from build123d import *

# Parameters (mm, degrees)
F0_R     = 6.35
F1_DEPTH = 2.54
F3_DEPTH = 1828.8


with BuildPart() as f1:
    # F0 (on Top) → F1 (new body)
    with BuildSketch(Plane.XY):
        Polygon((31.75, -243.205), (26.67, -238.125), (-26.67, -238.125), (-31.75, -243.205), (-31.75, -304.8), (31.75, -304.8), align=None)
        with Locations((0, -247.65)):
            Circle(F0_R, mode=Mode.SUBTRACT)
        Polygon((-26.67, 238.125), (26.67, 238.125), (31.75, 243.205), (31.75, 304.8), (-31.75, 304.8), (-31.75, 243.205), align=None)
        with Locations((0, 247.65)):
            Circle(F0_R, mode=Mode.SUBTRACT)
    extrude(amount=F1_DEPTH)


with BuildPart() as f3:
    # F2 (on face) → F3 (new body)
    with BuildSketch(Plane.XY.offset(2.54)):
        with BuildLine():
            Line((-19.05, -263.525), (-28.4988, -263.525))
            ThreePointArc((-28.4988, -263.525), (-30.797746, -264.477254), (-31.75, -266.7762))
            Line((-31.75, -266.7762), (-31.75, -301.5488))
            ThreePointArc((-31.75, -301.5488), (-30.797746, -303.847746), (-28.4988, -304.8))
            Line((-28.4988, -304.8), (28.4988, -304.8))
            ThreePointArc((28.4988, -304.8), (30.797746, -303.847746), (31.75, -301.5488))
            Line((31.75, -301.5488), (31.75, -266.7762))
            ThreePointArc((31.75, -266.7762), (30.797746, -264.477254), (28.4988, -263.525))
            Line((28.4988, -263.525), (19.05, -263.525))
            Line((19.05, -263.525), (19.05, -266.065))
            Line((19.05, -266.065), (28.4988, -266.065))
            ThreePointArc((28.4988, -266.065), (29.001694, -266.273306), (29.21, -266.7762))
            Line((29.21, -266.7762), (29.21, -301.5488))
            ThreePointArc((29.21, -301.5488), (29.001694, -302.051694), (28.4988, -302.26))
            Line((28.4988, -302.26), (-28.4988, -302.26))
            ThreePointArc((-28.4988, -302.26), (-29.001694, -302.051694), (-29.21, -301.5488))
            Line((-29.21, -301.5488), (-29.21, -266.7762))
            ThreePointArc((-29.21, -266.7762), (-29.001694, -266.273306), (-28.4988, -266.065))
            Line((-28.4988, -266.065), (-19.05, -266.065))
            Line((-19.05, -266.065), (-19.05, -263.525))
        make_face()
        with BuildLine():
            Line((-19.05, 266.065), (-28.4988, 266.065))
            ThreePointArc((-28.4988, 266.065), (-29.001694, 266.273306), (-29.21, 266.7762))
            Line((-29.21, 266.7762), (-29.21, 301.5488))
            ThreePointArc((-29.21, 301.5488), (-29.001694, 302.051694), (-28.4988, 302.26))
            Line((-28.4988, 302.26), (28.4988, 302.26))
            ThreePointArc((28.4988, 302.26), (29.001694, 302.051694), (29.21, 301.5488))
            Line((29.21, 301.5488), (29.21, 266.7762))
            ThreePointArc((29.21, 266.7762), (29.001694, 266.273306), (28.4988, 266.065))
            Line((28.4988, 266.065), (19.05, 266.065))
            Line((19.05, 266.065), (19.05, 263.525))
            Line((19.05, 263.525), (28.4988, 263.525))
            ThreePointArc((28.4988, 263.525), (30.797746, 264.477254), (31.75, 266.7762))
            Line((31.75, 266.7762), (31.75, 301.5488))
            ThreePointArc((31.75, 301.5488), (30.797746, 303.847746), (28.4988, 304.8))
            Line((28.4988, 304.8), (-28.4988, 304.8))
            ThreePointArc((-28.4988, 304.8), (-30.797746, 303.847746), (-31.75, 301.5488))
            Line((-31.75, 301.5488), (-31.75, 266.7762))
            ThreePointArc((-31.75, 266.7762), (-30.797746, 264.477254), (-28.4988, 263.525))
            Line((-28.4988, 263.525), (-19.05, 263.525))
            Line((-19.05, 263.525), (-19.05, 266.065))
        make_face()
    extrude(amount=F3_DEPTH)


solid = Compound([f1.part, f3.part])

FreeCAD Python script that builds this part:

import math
import FreeCAD as App
import Part
import Sketcher

V = App.Vector
Q = App.Units.Quantity

doc = App.newDocument("Part")
body = doc.addObject("PartDesign::Body", "Body")
body.AllowCompound = True

# Sketch on XY plane
sketch1 = body.newObject("Sketcher::SketchObject", "Sketch")
sketch1.AttachmentSupport = (doc.getObject("XY_Plane"), [""])
sketch1.MapMode = "FlatFace"
sketch1.addGeometry(Part.LineSegment(V(31.75, -243.205, 0), V(26.67, -238.125, 0)), False)
sketch1.addGeometry(Part.LineSegment(V(26.67, -238.125, 0), V(-26.67, -238.125, 0)), False)
sketch1.addGeometry(Part.LineSegment(V(-26.67, -238.125, 0), V(-31.75, -243.205, 0)), False)
sketch1.addGeometry(Part.LineSegment(V(-31.75, -243.205, 0), V(-31.75, -304.8, 0)), False)
sketch1.addGeometry(Part.LineSegment(V(-31.75, -304.8, 0), V(31.75, -304.8, 0)), False)
sketch1.addGeometry(Part.LineSegment(V(31.75, -304.8, 0), V(31.75, -243.205, 0)), False)
sketch1.addGeometry(Part.Circle(V(0, -247.65, 0), V(0, 0, 1), 6.35), False)
sketch1.addGeometry(Part.LineSegment(V(-26.67, 238.125, 0), V(26.67, 238.125, 0)), False)
sketch1.addGeometry(Part.LineSegment(V(26.67, 238.125, 0), V(31.75, 243.205, 0)), False)
sketch1.addGeometry(Part.LineSegment(V(31.75, 243.205, 0), V(31.75, 304.8, 0)), False)
sketch1.addGeometry(Part.LineSegment(V(31.75, 304.8, 0), V(-31.75, 304.8, 0)), False)
sketch1.addGeometry(Part.LineSegment(V(-31.75, 304.8, 0), V(-31.75, 243.205, 0)), False)
sketch1.addGeometry(Part.LineSegment(V(-31.75, 243.205, 0), V(-26.67, 238.125, 0)), False)
sketch1.addGeometry(Part.Circle(V(0, 247.65, 0), V(0, 0, 1), 6.35), False)
sketch1.addConstraint(Sketcher.Constraint("Coincident", 0, 2, 1, 1))
sketch1.addConstraint(Sketcher.Constraint("Coincident", 1, 2, 2, 1))
sketch1.addConstraint(Sketcher.Constraint("Coincident", 2, 2, 3, 1))
sketch1.addConstraint(Sketcher.Constraint("Coincident", 3, 2, 4, 1))
sketch1.addConstraint(Sketcher.Constraint("Coincident", 4, 2, 5, 1))
sketch1.addConstraint(Sketcher.Constraint("Coincident", 5, 2, 0, 1))
sketch1.addConstraint(Sketcher.Constraint("Coincident", 7, 2, 8, 1))
sketch1.addConstraint(Sketcher.Constraint("Coincident", 8, 2, 9, 1))
sketch1.addConstraint(Sketcher.Constraint("Coincident", 9, 2, 10, 1))
sketch1.addConstraint(Sketcher.Constraint("Coincident", 10, 2, 11, 1))
sketch1.addConstraint(Sketcher.Constraint("Coincident", 11, 2, 12, 1))
sketch1.addConstraint(Sketcher.Constraint("Coincident", 12, 2, 7, 1))
sketch1.addConstraint(Sketcher.Constraint("Horizontal", 1))
sketch1.addConstraint(Sketcher.Constraint("Vertical", 3))
sketch1.addConstraint(Sketcher.Constraint("Horizontal", 4))
sketch1.addConstraint(Sketcher.Constraint("Vertical", 5))
sketch1.addConstraint(Sketcher.Constraint("Horizontal", 7))
sketch1.addConstraint(Sketcher.Constraint("Vertical", 9))
sketch1.addConstraint(Sketcher.Constraint("Horizontal", 10))
sketch1.addConstraint(Sketcher.Constraint("Vertical", 11))
sketch1.addConstraint(Sketcher.Constraint("Equal", 6, 13))
sketch1.addConstraint(Sketcher.Constraint("Symmetric", 6, 3, 13, 3, -1, 1))
sketch1.addConstraint(Sketcher.Constraint("Symmetric", 1, 2, 7, 2, -1, 1))
sketch1.addConstraint(Sketcher.Constraint("Symmetric", 2, 2, 8, 2, -1, 1))
sketch1.addConstraint(Sketcher.Constraint("Symmetric", 4, 2, 10, 2, -1, 1))
sketch1.addConstraint(Sketcher.Constraint("Symmetric", 2, 2, 5, 2, -2))
sketch1.addConstraint(Sketcher.Constraint("PointOnObject", 6, 3, -2))
sketch1.addConstraint(Sketcher.Constraint("Perpendicular", 0, 2))
sketch1.addConstraint(Sketcher.Constraint("Perpendicular", 8, 12))
sketch1.addConstraint(Sketcher.Constraint("Horizontal", 8, 2, 11, 2))
sketch1.addConstraint(Sketcher.Constraint("Vertical", 0, 2, 7, 2))
sketch1.addConstraint(Sketcher.Constraint("Diameter", 6, Q("0.5 in")))
sketch1.addConstraint(Sketcher.Constraint("DistanceX", 1, 2, 1, 1, Q("2.1 in")))
sketch1.addConstraint(Sketcher.Constraint("DistanceX", 4, 1, 4, 2, Q("2.5 in")))
sketch1.addConstraint(Sketcher.Constraint("DistanceY", 3, 2, -1, 1, Q("12 in")))
sketch1.addConstraint(Sketcher.Constraint("DistanceY", 6, 3, 13, 3, Q("19.5 in")))
sketch1.addConstraint(Sketcher.Constraint("DistanceY", 3, 2, 3, 1, Q("2.425 in")))
pad1 = body.newObject("PartDesign::Pad", "Pad")
pad1.Profile = sketch1
pad1.Length = Q("0.1 in")
body2 = doc.addObject("PartDesign::Body", "Body001")
body2.AllowCompound = True

# Sketch on XY plane
sketch2 = body2.newObject("Sketcher::SketchObject", "Sketch001")
sketch2.AttachmentSupport = (doc.getObject("XY_Plane001"), [""])
sketch2.MapMode = "FlatFace"
sketch2.AttachmentOffset = App.Placement(V(0, 0, 0.1 * 25.4), App.Rotation())
sketch2.addGeometry(Part.LineSegment(V(-19.05, -263.525, 0), V(-28.4988, -263.525, 0)), False)
sketch2.addGeometry(Part.ArcOfCircle(Part.Circle(V(-28.498801, -266.776199, 0), V(0, 0, 1), 3.251199), math.radians(89.999974), math.radians(180.000026)), False)
sketch2.addGeometry(Part.LineSegment(V(-31.75, -266.7762, 0), V(-31.75, -301.5488, 0)), False)
sketch2.addGeometry(Part.ArcOfCircle(Part.Circle(V(-28.498801, -301.548801, 0), V(0, 0, 1), 3.251199), math.radians(179.999974), math.radians(270.000026)), False)
sketch2.addGeometry(Part.LineSegment(V(-28.4988, -304.8, 0), V(28.4988, -304.8, 0)), False)
sketch2.addGeometry(Part.ArcOfCircle(Part.Circle(V(28.498801, -301.548801, 0), V(0, 0, 1), 3.251199), math.radians(-90.000026), math.radians(0.000026)), False)
sketch2.addGeometry(Part.LineSegment(V(31.75, -301.5488, 0), V(31.75, -266.7762, 0)), False)
sketch2.addGeometry(Part.ArcOfCircle(Part.Circle(V(28.498801, -266.776199, 0), V(0, 0, 1), 3.251199), math.radians(-0.000026), math.radians(90.000026)), False)
sketch2.addGeometry(Part.LineSegment(V(28.4988, -263.525, 0), V(19.05, -263.525, 0)), False)
sketch2.addGeometry(Part.LineSegment(V(19.05, -263.525, 0), V(19.05, -266.065, 0)), False)
sketch2.addGeometry(Part.LineSegment(V(19.05, -266.065, 0), V(28.4988, -266.065, 0)), False)
sketch2.addGeometry(Part.ArcOfCircle(Part.Circle(V(28.498799, -266.776201, 0), V(0, 0, 1), 0.711201), math.radians(0.000094), math.radians(89.999906)), False)
sketch2.addGeometry(Part.LineSegment(V(29.21, -266.7762, 0), V(29.21, -301.5488, 0)), False)
sketch2.addGeometry(Part.ArcOfCircle(Part.Circle(V(28.498799, -301.548799, 0), V(0, 0, 1), 0.711201), math.radians(-89.999906), math.radians(-0.000094)), False)
sketch2.addGeometry(Part.LineSegment(V(28.4988, -302.26, 0), V(-28.4988, -302.26, 0)), False)
sketch2.addGeometry(Part.ArcOfCircle(Part.Circle(V(-28.498799, -301.548799, 0), V(0, 0, 1), 0.711201), math.radians(-179.999906), math.radians(-90.000094)), False)
sketch2.addGeometry(Part.LineSegment(V(-29.21, -301.5488, 0), V(-29.21, -266.7762, 0)), False)
sketch2.addGeometry(Part.ArcOfCircle(Part.Circle(V(-28.498799, -266.776201, 0), V(0, 0, 1), 0.711201), math.radians(90.000094), math.radians(179.999906)), False)
sketch2.addGeometry(Part.LineSegment(V(-28.4988, -266.065, 0), V(-19.05, -266.065, 0)), False)
sketch2.addGeometry(Part.LineSegment(V(-19.05, -266.065, 0), V(-19.05, -263.525, 0)), False)
sketch2.addGeometry(Part.LineSegment(V(-19.05, 266.065, 0), V(-28.4988, 266.065, 0)), False)
sketch2.addGeometry(Part.ArcOfCircle(Part.Circle(V(-28.498799, 266.776201, 0), V(0, 0, 1), 0.711201), math.radians(-179.999906), math.radians(-90.000094)), False)
sketch2.addGeometry(Part.LineSegment(V(-29.21, 266.7762, 0), V(-29.21, 301.5488, 0)), False)
sketch2.addGeometry(Part.ArcOfCircle(Part.Circle(V(-28.498799, 301.548799, 0), V(0, 0, 1), 0.711201), math.radians(90.000094), math.radians(179.999906)), False)
sketch2.addGeometry(Part.LineSegment(V(-28.4988, 302.26, 0), V(28.4988, 302.26, 0)), False)
sketch2.addGeometry(Part.ArcOfCircle(Part.Circle(V(28.498799, 301.548799, 0), V(0, 0, 1), 0.711201), math.radians(0.000094), math.radians(89.999906)), False)
sketch2.addGeometry(Part.LineSegment(V(29.21, 301.5488, 0), V(29.21, 266.7762, 0)), False)
sketch2.addGeometry(Part.ArcOfCircle(Part.Circle(V(28.498799, 266.776201, 0), V(0, 0, 1), 0.711201), math.radians(-89.999906), math.radians(-0.000094)), False)
sketch2.addGeometry(Part.LineSegment(V(28.4988, 266.065, 0), V(19.05, 266.065, 0)), False)
sketch2.addGeometry(Part.LineSegment(V(19.05, 266.065, 0), V(19.05, 263.525, 0)), False)
sketch2.addGeometry(Part.LineSegment(V(19.05, 263.525, 0), V(28.4988, 263.525, 0)), False)
sketch2.addGeometry(Part.ArcOfCircle(Part.Circle(V(28.498801, 266.776199, 0), V(0, 0, 1), 3.251199), math.radians(-90.000026), math.radians(0.000026)), False)
sketch2.addGeometry(Part.LineSegment(V(31.75, 266.7762, 0), V(31.75, 301.5488, 0)), False)
sketch2.addGeometry(Part.ArcOfCircle(Part.Circle(V(28.498801, 301.548801, 0), V(0, 0, 1), 3.251199), math.radians(-0.000026), math.radians(90.000026)), False)
sketch2.addGeometry(Part.LineSegment(V(28.4988, 304.8, 0), V(-28.4988, 304.8, 0)), False)
sketch2.addGeometry(Part.ArcOfCircle(Part.Circle(V(-28.498801, 301.548801, 0), V(0, 0, 1), 3.251199), math.radians(89.999974), math.radians(180.000026)), False)
sketch2.addGeometry(Part.LineSegment(V(-31.75, 301.5488, 0), V(-31.75, 266.7762, 0)), False)
sketch2.addGeometry(Part.ArcOfCircle(Part.Circle(V(-28.498801, 266.776199, 0), V(0, 0, 1), 3.251199), math.radians(179.999974), math.radians(270.000026)), False)
sketch2.addGeometry(Part.LineSegment(V(-28.4988, 263.525, 0), V(-19.05, 263.525, 0)), False)
sketch2.addGeometry(Part.LineSegment(V(-19.05, 263.525, 0), V(-19.05, 266.065, 0)), False)
sketch2.addConstraint(Sketcher.Constraint("Tangent", 0, 2, 1, 1))
sketch2.addConstraint(Sketcher.Constraint("Tangent", 1, 2, 2, 1))
sketch2.addConstraint(Sketcher.Constraint("Tangent", 2, 2, 3, 1))
sketch2.addConstraint(Sketcher.Constraint("Tangent", 3, 2, 4, 1))
sketch2.addConstraint(Sketcher.Constraint("Tangent", 4, 2, 5, 1))
sketch2.addConstraint(Sketcher.Constraint("Tangent", 5, 2, 6, 1))
sketch2.addConstraint(Sketcher.Constraint("Tangent", 6, 2, 7, 1))
sketch2.addConstraint(Sketcher.Constraint("Tangent", 7, 2, 8, 1))
sketch2.addConstraint(Sketcher.Constraint("Coincident", 8, 2, 9, 1))
sketch2.addConstraint(Sketcher.Constraint("Coincident", 9, 2, 10, 1))
sketch2.addConstraint(Sketcher.Constraint("Tangent", 10, 2, 11, 2))
sketch2.addConstraint(Sketcher.Constraint("Tangent", 11, 1, 12, 1))
sketch2.addConstraint(Sketcher.Constraint("Tangent", 12, 2, 13, 2))
sketch2.addConstraint(Sketcher.Constraint("Tangent", 13, 1, 14, 1))
sketch2.addConstraint(Sketcher.Constraint("Tangent", 14, 2, 15, 2))
sketch2.addConstraint(Sketcher.Constraint("Tangent", 15, 1, 16, 1))
sketch2.addConstraint(Sketcher.Constraint("Tangent", 16, 2, 17, 2))
sketch2.addConstraint(Sketcher.Constraint("Tangent", 17, 1, 18, 1))
sketch2.addConstraint(Sketcher.Constraint("Coincident", 18, 2, 19, 1))
sketch2.addConstraint(Sketcher.Constraint("Coincident", 19, 2, 0, 1))
sketch2.addConstraint(Sketcher.Constraint("Tangent", 20, 2, 21, 2))
sketch2.addConstraint(Sketcher.Constraint("Tangent", 21, 1, 22, 1))
sketch2.addConstraint(Sketcher.Constraint("Tangent", 22, 2, 23, 2))
sketch2.addConstraint(Sketcher.Constraint("Tangent", 23, 1, 24, 1))
sketch2.addConstraint(Sketcher.Constraint("Tangent", 24, 2, 25, 2))
sketch2.addConstraint(Sketcher.Constraint("Tangent", 25, 1, 26, 1))
sketch2.addConstraint(Sketcher.Constraint("Tangent", 26, 2, 27, 2))
sketch2.addConstraint(Sketcher.Constraint("Tangent", 27, 1, 28, 1))
sketch2.addConstraint(Sketcher.Constraint("Coincident", 28, 2, 29, 1))
sketch2.addConstraint(Sketcher.Constraint("Coincident", 29, 2, 30, 1))
sketch2.addConstraint(Sketcher.Constraint("Tangent", 30, 2, 31, 1))
sketch2.addConstraint(Sketcher.Constraint("Tangent", 31, 2, 32, 1))
sketch2.addConstraint(Sketcher.Constraint("Tangent", 32, 2, 33, 1))
sketch2.addConstraint(Sketcher.Constraint("Tangent", 33, 2, 34, 1))
sketch2.addConstraint(Sketcher.Constraint("Tangent", 34, 2, 35, 1))
sketch2.addConstraint(Sketcher.Constraint("Tangent", 35, 2, 36, 1))
sketch2.addConstraint(Sketcher.Constraint("Tangent", 36, 2, 37, 1))
sketch2.addConstraint(Sketcher.Constraint("Tangent", 37, 2, 38, 1))
sketch2.addConstraint(Sketcher.Constraint("Coincident", 38, 2, 39, 1))
sketch2.addConstraint(Sketcher.Constraint("Coincident", 39, 2, 20, 1))
sketch2.addConstraint(Sketcher.Constraint("Horizontal", 0))
sketch2.addConstraint(Sketcher.Constraint("Vertical", 2))
sketch2.addConstraint(Sketcher.Constraint("Horizontal", 4))
sketch2.addConstraint(Sketcher.Constraint("Vertical", 6))
sketch2.addConstraint(Sketcher.Constraint("Horizontal", 8))
sketch2.addConstraint(Sketcher.Constraint("Vertical", 9))
sketch2.addConstraint(Sketcher.Constraint("Horizontal", 10))
sketch2.addConstraint(Sketcher.Constraint("Vertical", 12))
sketch2.addConstraint(Sketcher.Constraint("Horizontal", 14))
sketch2.addConstraint(Sketcher.Constraint("Vertical", 16))
sketch2.addConstraint(Sketcher.Constraint("Horizontal", 18))
sketch2.addConstraint(Sketcher.Constraint("Vertical", 19))
sketch2.addConstraint(Sketcher.Constraint("Horizontal", 20))
sketch2.addConstraint(Sketcher.Constraint("Vertical", 22))
sketch2.addConstraint(Sketcher.Constraint("Horizontal", 24))
sketch2.addConstraint(Sketcher.Constraint("Vertical", 26))
sketch2.addConstraint(Sketcher.Constraint("Horizontal", 28))
sketch2.addConstraint(Sketcher.Constraint("Vertical", 29))
sketch2.addConstraint(Sketcher.Constraint("Horizontal", 30))
sketch2.addConstraint(Sketcher.Constraint("Vertical", 32))
sketch2.addConstraint(Sketcher.Constraint("Horizontal", 34))
sketch2.addConstraint(Sketcher.Constraint("Vertical", 36))
sketch2.addConstraint(Sketcher.Constraint("Horizontal", 38))
sketch2.addConstraint(Sketcher.Constraint("Vertical", 39))
sketch2.addConstraint(Sketcher.Constraint("Coincident", 11, 3, 7, 3))
sketch2.addConstraint(Sketcher.Constraint("Coincident", 13, 3, 5, 3))
sketch2.addConstraint(Sketcher.Constraint("Coincident", 15, 3, 3, 3))
sketch2.addConstraint(Sketcher.Constraint("Coincident", 17, 3, 1, 3))
sketch2.addConstraint(Sketcher.Constraint("Coincident", 31, 3, 27, 3))
sketch2.addConstraint(Sketcher.Constraint("Coincident", 33, 3, 25, 3))
sketch2.addConstraint(Sketcher.Constraint("Coincident", 35, 3, 23, 3))
sketch2.addConstraint(Sketcher.Constraint("Coincident", 37, 3, 21, 3))
sketch2.addConstraint(Sketcher.Constraint("Equal", 1, 3))
sketch2.addConstraint(Sketcher.Constraint("Equal", 3, 5))
sketch2.addConstraint(Sketcher.Constraint("Equal", 5, 7))
sketch2.addConstraint(Sketcher.Constraint("Equal", 17, 21))
sketch2.addConstraint(Sketcher.Constraint("Equal", 21, 23))
sketch2.addConstraint(Sketcher.Constraint("Equal", 23, 25))
sketch2.addConstraint(Sketcher.Constraint("Equal", 25, 27))
sketch2.addConstraint(Sketcher.Constraint("Equal", 7, 31))
sketch2.addConstraint(Sketcher.Constraint("Symmetric", 7, 3, 21, 3, -1, 1))
sketch2.addConstraint(Sketcher.Constraint("Symmetric", 3, 3, 25, 3, -1, 1))
sketch2.addConstraint(Sketcher.Constraint("Symmetric", 18, 2, 28, 2, -1, 1))
sketch2.addConstraint(Sketcher.Constraint("Symmetric", 1, 3, 7, 3, -2))
sketch2.addConstraint(Sketcher.Constraint("Vertical", 9, 2, 28, 2))
sketch2.addConstraint(Sketcher.Constraint("Vertical", 19, 2, 38, 2))
sketch2.addConstraint(Sketcher.Constraint("DistanceY", 9, 2, 9, 1, Q("0.1 in")))
sketch2.addConstraint(Sketcher.Constraint("DistanceY", 3, 2, -1, 1, Q("12 in")))
sketch2.addConstraint(Sketcher.Constraint("Radius", 1, Q("0.1279999 in")))
sketch2.addConstraint(Sketcher.Constraint("DistanceX", 8, 2, 6, 2, Q("0.5 in")))
sketch2.addConstraint(Sketcher.Constraint("DistanceX", 4, 1, 4, 2, Q("2.244 in")))
sketch2.addConstraint(Sketcher.Constraint("DistanceY", 2, 2, 2, 1, Q("1.369 in")))
pad2 = body2.newObject("PartDesign::Pad", "Pad001")
pad2.Profile = sketch2
pad2.Length = Q("72 in")

doc.recompute()
